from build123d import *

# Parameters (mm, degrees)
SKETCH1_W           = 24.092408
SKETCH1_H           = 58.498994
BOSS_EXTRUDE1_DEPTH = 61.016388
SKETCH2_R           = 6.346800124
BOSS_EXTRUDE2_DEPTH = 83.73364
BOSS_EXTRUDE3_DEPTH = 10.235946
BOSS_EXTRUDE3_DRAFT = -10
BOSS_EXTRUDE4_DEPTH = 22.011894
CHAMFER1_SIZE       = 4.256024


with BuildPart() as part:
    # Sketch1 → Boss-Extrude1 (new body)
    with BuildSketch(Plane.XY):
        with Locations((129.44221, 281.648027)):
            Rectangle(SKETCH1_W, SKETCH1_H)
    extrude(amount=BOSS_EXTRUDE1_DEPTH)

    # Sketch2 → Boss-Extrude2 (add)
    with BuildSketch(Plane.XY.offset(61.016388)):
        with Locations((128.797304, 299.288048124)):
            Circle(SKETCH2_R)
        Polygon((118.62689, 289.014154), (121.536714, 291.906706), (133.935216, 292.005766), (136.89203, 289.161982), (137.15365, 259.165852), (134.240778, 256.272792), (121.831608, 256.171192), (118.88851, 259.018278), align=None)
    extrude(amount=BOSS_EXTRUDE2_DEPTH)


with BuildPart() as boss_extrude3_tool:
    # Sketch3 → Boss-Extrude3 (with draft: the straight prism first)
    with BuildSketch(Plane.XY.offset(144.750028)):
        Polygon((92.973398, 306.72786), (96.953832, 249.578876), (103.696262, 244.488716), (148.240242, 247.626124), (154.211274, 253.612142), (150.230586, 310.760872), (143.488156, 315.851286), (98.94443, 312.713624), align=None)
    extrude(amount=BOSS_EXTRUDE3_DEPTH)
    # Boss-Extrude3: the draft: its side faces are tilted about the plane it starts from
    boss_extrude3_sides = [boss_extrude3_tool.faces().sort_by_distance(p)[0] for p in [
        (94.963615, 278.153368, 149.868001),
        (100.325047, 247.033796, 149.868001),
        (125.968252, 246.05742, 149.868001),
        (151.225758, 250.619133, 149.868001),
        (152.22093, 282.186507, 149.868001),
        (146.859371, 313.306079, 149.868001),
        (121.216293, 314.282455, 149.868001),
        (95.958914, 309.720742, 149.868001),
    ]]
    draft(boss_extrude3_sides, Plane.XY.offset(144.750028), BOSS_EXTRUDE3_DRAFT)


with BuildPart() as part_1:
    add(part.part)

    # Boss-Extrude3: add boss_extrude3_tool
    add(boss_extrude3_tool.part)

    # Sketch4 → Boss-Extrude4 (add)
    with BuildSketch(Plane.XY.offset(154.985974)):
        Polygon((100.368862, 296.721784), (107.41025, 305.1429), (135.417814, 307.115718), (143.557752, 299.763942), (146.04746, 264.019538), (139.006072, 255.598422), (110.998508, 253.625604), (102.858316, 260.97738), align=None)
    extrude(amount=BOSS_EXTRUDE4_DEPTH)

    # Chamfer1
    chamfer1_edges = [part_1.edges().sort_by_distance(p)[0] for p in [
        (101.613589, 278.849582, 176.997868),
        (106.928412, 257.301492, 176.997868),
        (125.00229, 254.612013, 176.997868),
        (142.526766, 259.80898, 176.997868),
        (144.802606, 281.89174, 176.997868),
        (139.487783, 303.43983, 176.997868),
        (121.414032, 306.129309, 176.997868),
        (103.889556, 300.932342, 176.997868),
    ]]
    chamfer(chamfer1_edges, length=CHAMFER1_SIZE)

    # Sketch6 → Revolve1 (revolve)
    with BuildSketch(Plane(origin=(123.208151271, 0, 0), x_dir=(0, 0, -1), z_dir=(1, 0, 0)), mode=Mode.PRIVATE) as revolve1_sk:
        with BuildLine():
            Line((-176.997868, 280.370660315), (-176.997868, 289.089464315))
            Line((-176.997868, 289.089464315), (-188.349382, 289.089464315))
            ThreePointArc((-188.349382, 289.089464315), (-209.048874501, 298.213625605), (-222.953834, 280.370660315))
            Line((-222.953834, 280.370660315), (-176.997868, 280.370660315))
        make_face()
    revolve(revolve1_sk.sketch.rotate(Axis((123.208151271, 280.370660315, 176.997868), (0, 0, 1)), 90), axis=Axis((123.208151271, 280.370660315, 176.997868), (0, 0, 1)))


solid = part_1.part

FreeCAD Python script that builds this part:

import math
import FreeCAD as App
import Part
import Sketcher
Q = App.Units.Quantity


def edges_at(feature, points):
    """Names of the edges that pass closest to the given points."""
    edges = feature.Shape.Edges
    near = lambda p: min(range(len(edges)), key=lambda i: edges[i].distToShape(Part.Vertex(*p))[0])
    return sorted({f"Edge{near(p) + 1}" for p in points})


def faces_at(feature, points):
    """Names of the faces that lie closest to the given points."""
    faces = feature.Shape.Faces
    near = lambda p: min(range(len(faces)), key=lambda i: faces[i].distToShape(Part.Vertex(*p))[0])
    return sorted({f"Face{near(p) + 1}" for p in points})

doc = App.newDocument("Part")
body = doc.addObject("PartDesign::Body", "Body")

sketch1 = doc.addObject("Sketcher::SketchObject", "Sketch")
body.addObject(sketch1)
sketch1.AttachmentSupport = (doc.XY_Plane, [""])
sketch1.MapMode = "FlatFace"
sketch1.addGeometry([
    Part.LineSegment(App.Vector(117, 311, 0), App.Vector(117, 252, 0)),
    Part.LineSegment(App.Vector(117, 252, 0), App.Vector(141, 252, 0)),
    Part.LineSegment(App.Vector(141, 252, 0), App.Vector(141, 311, 0)),
    Part.LineSegment(App.Vector(141, 311, 0), App.Vector(117, 311, 0)),
], False)
sketch1.addConstraint([
    Sketcher.Constraint("Coincident", 0, 2, 1, 1),
    Sketcher.Constraint("Coincident", 1, 2, 2, 1),
    Sketcher.Constraint("Coincident", 2, 2, 3, 1),
    Sketcher.Constraint("Coincident", 3, 2, 0, 1),
    Sketcher.Constraint("Vertical", 0),
    Sketcher.Constraint("Horizontal", 1),
    Sketcher.Constraint("Vertical", 2),
    Sketcher.Constraint("Horizontal", 3),
    Sketcher.Constraint("DistanceX", 1, 1, 1, 2, Q("24.092408 mm")),
    Sketcher.Constraint("DistanceY", 0, 2, 0, 1, Q("58.498994 mm")),
    Sketcher.Constraint("DistanceY", -1, 1, 0, 2, Q("252.39853 mm")),
    Sketcher.Constraint("DistanceX", -1, 1, 0, 2, Q("117.396006 mm")),
])
pad1 = doc.addObject("PartDesign::Pad", "Pad")
body.addObject(pad1)
pad1.Profile = sketch1
pad1.Length = 61.016388

sketch2 = doc.addObject("Sketcher::SketchObject", "Sketch001")
body.addObject(sketch2)
sketch2.AttachmentSupport = (doc.XY_Plane, [""])
sketch2.MapMode = "FlatFace"
sketch2.AttachmentOffset = App.Placement(App.Vector(0, 0, 61.016388), App.Rotation())
sketch2.addGeometry([
    Part.Circle(App.Vector(128.797304, 299.288048, 0), App.Vector(0, 0, 1), 6.3468),
    Part.LineSegment(App.Vector(121.536714, 291.906706, 0), App.Vector(118.62689, 289.014154, 0)),
    Part.LineSegment(App.Vector(118.62689, 289.014154, 0), App.Vector(118.88851, 259.018278, 0)),
    Part.LineSegment(App.Vector(118.88851, 259.018278, 0), App.Vector(121.831608, 256.171192, 0)),
    Part.LineSegment(App.Vector(121.831608, 256.171192, 0), App.Vector(134.240778, 256.272792, 0)),
    Part.LineSegment(App.Vector(134.240778, 256.272792, 0), App.Vector(137.15365, 259.165852, 0)),
    Part.LineSegment(App.Vector(137.15365, 259.165852, 0), App.Vector(136.89203, 289.161982, 0)),
    Part.LineSegment(App.Vector(136.89203, 289.161982, 0), App.Vector(133.935216, 292.005766, 0)),
    Part.LineSegment(App.Vector(133.935216, 292.005766, 0), App.Vector(121.536714, 291.906706, 0)),
], False)
sketch2.addConstraint([
    Sketcher.Constraint("Coincident", 1, 2, 2, 1),
    Sketcher.Constraint("Coincident", 2, 2, 3, 1),
    Sketcher.Constraint("Coincident", 3, 2, 4, 1),
    Sketcher.Constraint("Coincident", 4, 2, 5, 1),
    Sketcher.Constraint("Coincident", 5, 2, 6, 1),
    Sketcher.Constraint("Coincident", 6, 2, 7, 1),
    Sketcher.Constraint("Coincident", 7, 2, 8, 1),
    Sketcher.Constraint("Coincident", 8, 2, 1, 1),
    Sketcher.Constraint("Diameter", 0, Q("12.6936 mm")),
    Sketcher.Constraint("DistanceX", 2, 2, 3, 2, Q("2.943098 mm")),
    Sketcher.Constraint("DistanceY", 3, 2, 4, 2, Q("0.1016 mm")),
    Sketcher.Constraint("DistanceX", 8, 2, 7, 2, Q("12.398502 mm")),
    Sketcher.Constraint("Distance", 3, Q("4.094841 mm")),
    Sketcher.Constraint("Distance", 6, Q("29.997271 mm")),
    Sketcher.Constraint("Distance", 7, Q("4.102421 mm")),
    Sketcher.Constraint("DistanceY", -1, 1, 0, 3, Q("299.288048 mm")),
    Sketcher.Constraint("DistanceX", -1, 1, 1, 2, Q("118.62689 mm")),
    Sketcher.Constraint("DistanceX", -1, 1, 2, 2, Q("118.88851 mm")),
    Sketcher.Constraint("DistanceY", -1, 1, 2, 2, Q("259.018278 mm")),
    Sketcher.Constraint("DistanceX", -1, 1, 4, 2, Q("134.240778 mm")),
    Sketcher.Constraint("DistanceX", -1, 1, 5, 2, Q("137.15365 mm")),
    Sketcher.Constraint("DistanceY", -1, 1, 5, 2, Q("259.165852 mm")),
    Sketcher.Constraint("DistanceX", -1, 1, 6, 2, Q("136.89203 mm")),
    Sketcher.Constraint("DistanceY", 1, 2, 6, 2, Q("0.147828 mm")),
    Sketcher.Constraint("DistanceY", 1, 2, 7, 2, Q("2.991612 mm")),
    Sketcher.Constraint("DistanceY", 1, 2, 8, 2, Q("2.892552 mm")),
    Sketcher.Constraint("DistanceX", 8, 2, 0, 3, Q("7.26059 mm")),
])
pad2 = doc.addObject("PartDesign::Pad", "Pad001")
body.addObject(pad2)
pad2.Profile = sketch2
pad2.Length = 83.73364
body2 = doc.addObject("PartDesign::Body", "Body001")

sketch3 = doc.addObject("Sketcher::SketchObject", "Sketch002")
body2.addObject(sketch3)
sketch3.AttachmentSupport = (doc.getObject("XY_Plane001"), [""])
sketch3.MapMode = "FlatFace"
sketch3.AttachmentOffset = App.Placement(App.Vector(0, 0, 144.750028), App.Rotation())
sketch3.addGeometry([
    Part.LineSegment(App.Vector(93, 307, 0), App.Vector(97, 250, 0)),
    Part.LineSegment(App.Vector(97, 250, 0), App.Vector(104, 244, 0)),
    Part.LineSegment(App.Vector(104, 244, 0), App.Vector(148, 248, 0)),
    Part.LineSegment(App.Vector(148, 248, 0), App.Vector(154, 254, 0)),
    Part.LineSegment(App.Vector(154, 254, 0), App.Vector(150, 311, 0)),
    Part.LineSegment(App.Vector(150, 311, 0), App.Vector(143, 316, 0)),
    Part.LineSegment(App.Vector(143, 316, 0), App.Vector(99, 313, 0)),
    Part.LineSegment(App.Vector(99, 313, 0), App.Vector(93, 307, 0)),
], False)
sketch3.addConstraint([
    Sketcher.Constraint("Coincident", 0, 2, 1, 1),
    Sketcher.Constraint("Coincident", 1, 2, 2, 1),
    Sketcher.Constraint("Coincident", 2, 2, 3, 1),
    Sketcher.Constraint("Coincident", 3, 2, 4, 1),
    Sketcher.Constraint("Coincident", 4, 2, 5, 1),
    Sketcher.Constraint("Coincident", 5, 2, 6, 1),
    Sketcher.Constraint("Coincident", 6, 2, 7, 1),
    Sketcher.Constraint("Coincident", 7, 2, 0, 1),
    Sketcher.Constraint("Distance", 4, Q("57.287199 mm")),
    Sketcher.Constraint("DistanceX", -1, 1, 7, 2, Q("92.973398 mm")),
    Sketcher.Constraint("DistanceX", -1, 1, 2, 2, Q("148.240242 mm")),
    Sketcher.Constraint("DistanceY", -1, 1, 3, 2, Q("253.612142 mm")),
    Sketcher.Constraint("DistanceY", -1, 1, 4, 2, Q("310.760872 mm")),
    Sketcher.Constraint("DistanceX", -1, 1, 6, 2, Q("98.94443 mm")),
    Sketcher.Constraint("DistanceY", -1, 1, 7, 2, Q("306.72786 mm")),
    Sketcher.Constraint("DistanceX", 0, 2, 1, 2, Q("6.74243 mm")),
    Sketcher.Constraint("DistanceY", 1, 2, 0, 2, Q("5.09016 mm")),
    Sketcher.Constraint("DistanceX", 1, 2, 2, 2, Q("44.54398 mm")),
    Sketcher.Constraint("DistanceY", 2, 2, 3, 2, Q("5.986018 mm")),
    Sketcher.Constraint("DistanceX", 0, 2, 3, 2, Q("57.257442 mm")),
    Sketcher.Constraint("DistanceX", 5, 2, 4, 2, Q("6.74243 mm")),
    Sketcher.Constraint("DistanceY", 0, 2, 5, 2, Q("66.27241 mm")),
    Sketcher.Constraint("DistanceY", 4, 2, 6, 2, Q("1.952752 mm")),
    Sketcher.Constraint("Distance", 0, Q("57.287435 mm")),
])
pad3 = doc.addObject("PartDesign::Pad", "Pad002")
body2.addObject(pad3)
pad3.Profile = sketch3
pad3.Length = 10.235946
doc.recompute()

datumplane = doc.addObject("PartDesign::Plane", "DatumPlane")
body2.addObject(datumplane)
datumplane.AttachmentSupport = (doc.getObject("XY_Plane001"), [""])
datumplane.MapMode = "FlatFace"
datumplane.AttachmentOffset = App.Placement(App.Vector(0, 0, 144.750028), App.Rotation())
draft = doc.addObject("PartDesign::Draft", "Draft")
body2.addObject(draft)
draft.Base = (pad3, faces_at(pad3, [
    (94.964, 278.153, 149.868),
    (100.325, 247.034, 149.868),
    (125.968, 246.057, 149.868),
    (151.226, 250.619, 149.868),
    (152.221, 282.187, 149.868),
    (146.859, 313.306, 149.868),
    (121.216, 314.282, 149.868),
    (95.959, 309.721, 149.868),
]))
draft.NeutralPlane = (datumplane, [""])
draft.Angle = 10
draft.Reversed = True
doc.recompute()

boolean = doc.addObject("PartDesign::Boolean", "Boolean")
body.addObject(boolean)
boolean.Type = "Fuse"
boolean.addObjects([body2])

sketch4 = doc.addObject("Sketcher::SketchObject", "Sketch003")
body.addObject(sketch4)
sketch4.AttachmentSupport = (doc.XY_Plane, [""])
sketch4.MapMode = "FlatFace"
sketch4.AttachmentOffset = App.Placement(App.Vector(0, 0, 154.985974), App.Rotation())
sketch4.addGeometry([
    Part.LineSegment(App.Vector(107, 305, 0), App.Vector(100, 297, 0)),
    Part.LineSegment(App.Vector(100, 297, 0), App.Vector(103, 261, 0)),
    Part.LineSegment(App.Vector(103, 261, 0), App.Vector(111, 254, 0)),
    Part.LineSegment(App.Vector(111, 254, 0), App.Vector(139, 256, 0)),
    Part.LineSegment(App.Vector(139, 256, 0), App.Vector(146, 264, 0)),
    Part.LineSegment(App.Vector(146, 264, 0), App.Vector(144, 300, 0)),
    Part.LineSegment(App.Vector(144, 300, 0), App.Vector(135, 307, 0)),
    Part.LineSegment(App.Vector(135, 307, 0), App.Vector(107, 305, 0)),
], False)
sketch4.addConstraint([
    Sketcher.Constraint("Coincident", 0, 2, 1, 1),
    Sketcher.Constraint("Coincident", 1, 2, 2, 1),
    Sketcher.Constraint("Coincident", 2, 2, 3, 1),
    Sketcher.Constraint("Coincident", 3, 2, 4, 1),
    Sketcher.Constraint("Coincident", 4, 2, 5, 1),
    Sketcher.Constraint("Coincident", 5, 2, 6, 1),
    Sketcher.Constraint("Coincident", 6, 2, 7, 1),
    Sketcher.Constraint("Coincident", 7, 2, 0, 1),
    Sketcher.Constraint("Parallel", 0, 4),
    Sketcher.Constraint("Parallel", 3, 7),
    Sketcher.Constraint("Equal", 0, 4),
    Sketcher.Constraint("Equal", 3, 7),
    Sketcher.Constraint("DistanceY", -1, 1, 7, 2, Q("305.1429 mm")),
    Sketcher.Constraint("DistanceX", 0, 2, 4, 2, Q("45.678598 mm")),
    Sketcher.Constraint("DistanceX", 7, 2, 5, 2, Q("36.147502 mm")),
    Sketcher.Constraint("Distance", 1, Q("35.830989 mm")),
    Sketcher.Constraint("Distance", 3, Q("28.076959 mm")),
    Sketcher.Constraint("DistanceX", -1, 1, 0, 2, Q("100.368862 mm")),
    Sketcher.Constraint("DistanceY", -1, 1, 1, 2, Q("260.97738 mm")),
    Sketcher.Constraint("DistanceX", -1, 1, 2, 2, Q("110.998508 mm")),
    Sketcher.Constraint("DistanceX", -1, 1, 3, 2, Q("139.006072 mm")),
    Sketcher.Constraint("DistanceY", -1, 1, 3, 2, Q("255.598422 mm")),
    Sketcher.Constraint("DistanceY", -1, 1, 4, 2, Q("264.019538 mm")),
    Sketcher.Constraint("DistanceY", -1, 1, 5, 2, Q("299.763942 mm")),
])
pad4 = doc.addObject("PartDesign::Pad", "Pad003")
body.addObject(pad4)
pad4.Profile = sketch4
pad4.Length = 22.011894
doc.recompute()

chamfer = doc.addObject("PartDesign::Chamfer", "Chamfer")
body.addObject(chamfer)
chamfer.Base = (pad4, edges_at(pad4, [
    (101.614, 278.85, 176.998),
    (106.928, 257.301, 176.998),
    (125.002, 254.612, 176.998),
    (142.527, 259.809, 176.998),
    (144.803, 281.892, 176.998),
    (139.488, 303.44, 176.998),
    (121.414, 306.129, 176.998),
    (103.89, 300.932, 176.998),
]))
chamfer.Size = 4.256024

sketch5 = doc.addObject("Sketcher::SketchObject", "Sketch004")
body.addObject(sketch5)
sketch5.AttachmentSupport = (doc.YZ_Plane, [""])
sketch5.MapMode = "FlatFace"
sketch5.AttachmentOffset = App.Placement(App.Vector(0, 0, 123.208151), App.Rotation())
sketch5.addGeometry([
    Part.LineSegment(App.Vector(280, 177, 0), App.Vector(289, 177, 0)),
    Part.LineSegment(App.Vector(289, 177, 0), App.Vector(289, 188, 0)),
    Part.ArcOfCircle(Part.Circle(App.Vector(280, 205, 0), App.Vector(0, 0, 1), 18), math.radians(-62), math.radians(90)),
    Part.LineSegment(App.Vector(280, 223, 0), App.Vector(280, 177, 0)),
], False)
sketch5.addGeometry(Part.LineSegment(App.Vector(280, 177, 0), App.Vector(280, 223, 0)), True)
sketch5.addConstraint([
    Sketcher.Constraint("Coincident", 0, 2, 1, 1),
    Sketcher.Constraint("Coincident", 1, 2, 2, 1),
    Sketcher.Constraint("Coincident", 2, 2, 3, 1),
    Sketcher.Constraint("Coincident", 3, 2, 0, 1),
    Sketcher.Constraint("Horizontal", 0),
    Sketcher.Constraint("Vertical", 1),
    Sketcher.Constraint("Vertical", 3),
    Sketcher.Constraint("Vertical", 4),
    Sketcher.Constraint("Coincident", 4, 1, 3, 2),
    Sketcher.Constraint("Equal", 3, 4),
    Sketcher.Constraint("Radius", 2, Q("18.400604 mm")),
    Sketcher.Constraint("DistanceX", 0, 1, 0, 2, Q("8.718804 mm")),
    Sketcher.Constraint("DistanceY", 1, 1, 1, 2, Q("11.351514 mm")),
    Sketcher.Constraint("DistanceY", 3, 2, 3, 1, Q("45.955966 mm")),
    Sketcher.Constraint("DistanceX", -1, 1, 2, 3, Q("280.37066 mm")),
    Sketcher.Constraint("DistanceY", -1, 1, 2, 3, Q("204.55323 mm")),
])
revolution = doc.addObject("PartDesign::Revolution", "Revolution")
body.addObject(revolution)
revolution.Profile = sketch5
revolution.ReferenceAxis = (sketch5, ["Axis0"])
revolution.Angle = 360

doc.recompute()
